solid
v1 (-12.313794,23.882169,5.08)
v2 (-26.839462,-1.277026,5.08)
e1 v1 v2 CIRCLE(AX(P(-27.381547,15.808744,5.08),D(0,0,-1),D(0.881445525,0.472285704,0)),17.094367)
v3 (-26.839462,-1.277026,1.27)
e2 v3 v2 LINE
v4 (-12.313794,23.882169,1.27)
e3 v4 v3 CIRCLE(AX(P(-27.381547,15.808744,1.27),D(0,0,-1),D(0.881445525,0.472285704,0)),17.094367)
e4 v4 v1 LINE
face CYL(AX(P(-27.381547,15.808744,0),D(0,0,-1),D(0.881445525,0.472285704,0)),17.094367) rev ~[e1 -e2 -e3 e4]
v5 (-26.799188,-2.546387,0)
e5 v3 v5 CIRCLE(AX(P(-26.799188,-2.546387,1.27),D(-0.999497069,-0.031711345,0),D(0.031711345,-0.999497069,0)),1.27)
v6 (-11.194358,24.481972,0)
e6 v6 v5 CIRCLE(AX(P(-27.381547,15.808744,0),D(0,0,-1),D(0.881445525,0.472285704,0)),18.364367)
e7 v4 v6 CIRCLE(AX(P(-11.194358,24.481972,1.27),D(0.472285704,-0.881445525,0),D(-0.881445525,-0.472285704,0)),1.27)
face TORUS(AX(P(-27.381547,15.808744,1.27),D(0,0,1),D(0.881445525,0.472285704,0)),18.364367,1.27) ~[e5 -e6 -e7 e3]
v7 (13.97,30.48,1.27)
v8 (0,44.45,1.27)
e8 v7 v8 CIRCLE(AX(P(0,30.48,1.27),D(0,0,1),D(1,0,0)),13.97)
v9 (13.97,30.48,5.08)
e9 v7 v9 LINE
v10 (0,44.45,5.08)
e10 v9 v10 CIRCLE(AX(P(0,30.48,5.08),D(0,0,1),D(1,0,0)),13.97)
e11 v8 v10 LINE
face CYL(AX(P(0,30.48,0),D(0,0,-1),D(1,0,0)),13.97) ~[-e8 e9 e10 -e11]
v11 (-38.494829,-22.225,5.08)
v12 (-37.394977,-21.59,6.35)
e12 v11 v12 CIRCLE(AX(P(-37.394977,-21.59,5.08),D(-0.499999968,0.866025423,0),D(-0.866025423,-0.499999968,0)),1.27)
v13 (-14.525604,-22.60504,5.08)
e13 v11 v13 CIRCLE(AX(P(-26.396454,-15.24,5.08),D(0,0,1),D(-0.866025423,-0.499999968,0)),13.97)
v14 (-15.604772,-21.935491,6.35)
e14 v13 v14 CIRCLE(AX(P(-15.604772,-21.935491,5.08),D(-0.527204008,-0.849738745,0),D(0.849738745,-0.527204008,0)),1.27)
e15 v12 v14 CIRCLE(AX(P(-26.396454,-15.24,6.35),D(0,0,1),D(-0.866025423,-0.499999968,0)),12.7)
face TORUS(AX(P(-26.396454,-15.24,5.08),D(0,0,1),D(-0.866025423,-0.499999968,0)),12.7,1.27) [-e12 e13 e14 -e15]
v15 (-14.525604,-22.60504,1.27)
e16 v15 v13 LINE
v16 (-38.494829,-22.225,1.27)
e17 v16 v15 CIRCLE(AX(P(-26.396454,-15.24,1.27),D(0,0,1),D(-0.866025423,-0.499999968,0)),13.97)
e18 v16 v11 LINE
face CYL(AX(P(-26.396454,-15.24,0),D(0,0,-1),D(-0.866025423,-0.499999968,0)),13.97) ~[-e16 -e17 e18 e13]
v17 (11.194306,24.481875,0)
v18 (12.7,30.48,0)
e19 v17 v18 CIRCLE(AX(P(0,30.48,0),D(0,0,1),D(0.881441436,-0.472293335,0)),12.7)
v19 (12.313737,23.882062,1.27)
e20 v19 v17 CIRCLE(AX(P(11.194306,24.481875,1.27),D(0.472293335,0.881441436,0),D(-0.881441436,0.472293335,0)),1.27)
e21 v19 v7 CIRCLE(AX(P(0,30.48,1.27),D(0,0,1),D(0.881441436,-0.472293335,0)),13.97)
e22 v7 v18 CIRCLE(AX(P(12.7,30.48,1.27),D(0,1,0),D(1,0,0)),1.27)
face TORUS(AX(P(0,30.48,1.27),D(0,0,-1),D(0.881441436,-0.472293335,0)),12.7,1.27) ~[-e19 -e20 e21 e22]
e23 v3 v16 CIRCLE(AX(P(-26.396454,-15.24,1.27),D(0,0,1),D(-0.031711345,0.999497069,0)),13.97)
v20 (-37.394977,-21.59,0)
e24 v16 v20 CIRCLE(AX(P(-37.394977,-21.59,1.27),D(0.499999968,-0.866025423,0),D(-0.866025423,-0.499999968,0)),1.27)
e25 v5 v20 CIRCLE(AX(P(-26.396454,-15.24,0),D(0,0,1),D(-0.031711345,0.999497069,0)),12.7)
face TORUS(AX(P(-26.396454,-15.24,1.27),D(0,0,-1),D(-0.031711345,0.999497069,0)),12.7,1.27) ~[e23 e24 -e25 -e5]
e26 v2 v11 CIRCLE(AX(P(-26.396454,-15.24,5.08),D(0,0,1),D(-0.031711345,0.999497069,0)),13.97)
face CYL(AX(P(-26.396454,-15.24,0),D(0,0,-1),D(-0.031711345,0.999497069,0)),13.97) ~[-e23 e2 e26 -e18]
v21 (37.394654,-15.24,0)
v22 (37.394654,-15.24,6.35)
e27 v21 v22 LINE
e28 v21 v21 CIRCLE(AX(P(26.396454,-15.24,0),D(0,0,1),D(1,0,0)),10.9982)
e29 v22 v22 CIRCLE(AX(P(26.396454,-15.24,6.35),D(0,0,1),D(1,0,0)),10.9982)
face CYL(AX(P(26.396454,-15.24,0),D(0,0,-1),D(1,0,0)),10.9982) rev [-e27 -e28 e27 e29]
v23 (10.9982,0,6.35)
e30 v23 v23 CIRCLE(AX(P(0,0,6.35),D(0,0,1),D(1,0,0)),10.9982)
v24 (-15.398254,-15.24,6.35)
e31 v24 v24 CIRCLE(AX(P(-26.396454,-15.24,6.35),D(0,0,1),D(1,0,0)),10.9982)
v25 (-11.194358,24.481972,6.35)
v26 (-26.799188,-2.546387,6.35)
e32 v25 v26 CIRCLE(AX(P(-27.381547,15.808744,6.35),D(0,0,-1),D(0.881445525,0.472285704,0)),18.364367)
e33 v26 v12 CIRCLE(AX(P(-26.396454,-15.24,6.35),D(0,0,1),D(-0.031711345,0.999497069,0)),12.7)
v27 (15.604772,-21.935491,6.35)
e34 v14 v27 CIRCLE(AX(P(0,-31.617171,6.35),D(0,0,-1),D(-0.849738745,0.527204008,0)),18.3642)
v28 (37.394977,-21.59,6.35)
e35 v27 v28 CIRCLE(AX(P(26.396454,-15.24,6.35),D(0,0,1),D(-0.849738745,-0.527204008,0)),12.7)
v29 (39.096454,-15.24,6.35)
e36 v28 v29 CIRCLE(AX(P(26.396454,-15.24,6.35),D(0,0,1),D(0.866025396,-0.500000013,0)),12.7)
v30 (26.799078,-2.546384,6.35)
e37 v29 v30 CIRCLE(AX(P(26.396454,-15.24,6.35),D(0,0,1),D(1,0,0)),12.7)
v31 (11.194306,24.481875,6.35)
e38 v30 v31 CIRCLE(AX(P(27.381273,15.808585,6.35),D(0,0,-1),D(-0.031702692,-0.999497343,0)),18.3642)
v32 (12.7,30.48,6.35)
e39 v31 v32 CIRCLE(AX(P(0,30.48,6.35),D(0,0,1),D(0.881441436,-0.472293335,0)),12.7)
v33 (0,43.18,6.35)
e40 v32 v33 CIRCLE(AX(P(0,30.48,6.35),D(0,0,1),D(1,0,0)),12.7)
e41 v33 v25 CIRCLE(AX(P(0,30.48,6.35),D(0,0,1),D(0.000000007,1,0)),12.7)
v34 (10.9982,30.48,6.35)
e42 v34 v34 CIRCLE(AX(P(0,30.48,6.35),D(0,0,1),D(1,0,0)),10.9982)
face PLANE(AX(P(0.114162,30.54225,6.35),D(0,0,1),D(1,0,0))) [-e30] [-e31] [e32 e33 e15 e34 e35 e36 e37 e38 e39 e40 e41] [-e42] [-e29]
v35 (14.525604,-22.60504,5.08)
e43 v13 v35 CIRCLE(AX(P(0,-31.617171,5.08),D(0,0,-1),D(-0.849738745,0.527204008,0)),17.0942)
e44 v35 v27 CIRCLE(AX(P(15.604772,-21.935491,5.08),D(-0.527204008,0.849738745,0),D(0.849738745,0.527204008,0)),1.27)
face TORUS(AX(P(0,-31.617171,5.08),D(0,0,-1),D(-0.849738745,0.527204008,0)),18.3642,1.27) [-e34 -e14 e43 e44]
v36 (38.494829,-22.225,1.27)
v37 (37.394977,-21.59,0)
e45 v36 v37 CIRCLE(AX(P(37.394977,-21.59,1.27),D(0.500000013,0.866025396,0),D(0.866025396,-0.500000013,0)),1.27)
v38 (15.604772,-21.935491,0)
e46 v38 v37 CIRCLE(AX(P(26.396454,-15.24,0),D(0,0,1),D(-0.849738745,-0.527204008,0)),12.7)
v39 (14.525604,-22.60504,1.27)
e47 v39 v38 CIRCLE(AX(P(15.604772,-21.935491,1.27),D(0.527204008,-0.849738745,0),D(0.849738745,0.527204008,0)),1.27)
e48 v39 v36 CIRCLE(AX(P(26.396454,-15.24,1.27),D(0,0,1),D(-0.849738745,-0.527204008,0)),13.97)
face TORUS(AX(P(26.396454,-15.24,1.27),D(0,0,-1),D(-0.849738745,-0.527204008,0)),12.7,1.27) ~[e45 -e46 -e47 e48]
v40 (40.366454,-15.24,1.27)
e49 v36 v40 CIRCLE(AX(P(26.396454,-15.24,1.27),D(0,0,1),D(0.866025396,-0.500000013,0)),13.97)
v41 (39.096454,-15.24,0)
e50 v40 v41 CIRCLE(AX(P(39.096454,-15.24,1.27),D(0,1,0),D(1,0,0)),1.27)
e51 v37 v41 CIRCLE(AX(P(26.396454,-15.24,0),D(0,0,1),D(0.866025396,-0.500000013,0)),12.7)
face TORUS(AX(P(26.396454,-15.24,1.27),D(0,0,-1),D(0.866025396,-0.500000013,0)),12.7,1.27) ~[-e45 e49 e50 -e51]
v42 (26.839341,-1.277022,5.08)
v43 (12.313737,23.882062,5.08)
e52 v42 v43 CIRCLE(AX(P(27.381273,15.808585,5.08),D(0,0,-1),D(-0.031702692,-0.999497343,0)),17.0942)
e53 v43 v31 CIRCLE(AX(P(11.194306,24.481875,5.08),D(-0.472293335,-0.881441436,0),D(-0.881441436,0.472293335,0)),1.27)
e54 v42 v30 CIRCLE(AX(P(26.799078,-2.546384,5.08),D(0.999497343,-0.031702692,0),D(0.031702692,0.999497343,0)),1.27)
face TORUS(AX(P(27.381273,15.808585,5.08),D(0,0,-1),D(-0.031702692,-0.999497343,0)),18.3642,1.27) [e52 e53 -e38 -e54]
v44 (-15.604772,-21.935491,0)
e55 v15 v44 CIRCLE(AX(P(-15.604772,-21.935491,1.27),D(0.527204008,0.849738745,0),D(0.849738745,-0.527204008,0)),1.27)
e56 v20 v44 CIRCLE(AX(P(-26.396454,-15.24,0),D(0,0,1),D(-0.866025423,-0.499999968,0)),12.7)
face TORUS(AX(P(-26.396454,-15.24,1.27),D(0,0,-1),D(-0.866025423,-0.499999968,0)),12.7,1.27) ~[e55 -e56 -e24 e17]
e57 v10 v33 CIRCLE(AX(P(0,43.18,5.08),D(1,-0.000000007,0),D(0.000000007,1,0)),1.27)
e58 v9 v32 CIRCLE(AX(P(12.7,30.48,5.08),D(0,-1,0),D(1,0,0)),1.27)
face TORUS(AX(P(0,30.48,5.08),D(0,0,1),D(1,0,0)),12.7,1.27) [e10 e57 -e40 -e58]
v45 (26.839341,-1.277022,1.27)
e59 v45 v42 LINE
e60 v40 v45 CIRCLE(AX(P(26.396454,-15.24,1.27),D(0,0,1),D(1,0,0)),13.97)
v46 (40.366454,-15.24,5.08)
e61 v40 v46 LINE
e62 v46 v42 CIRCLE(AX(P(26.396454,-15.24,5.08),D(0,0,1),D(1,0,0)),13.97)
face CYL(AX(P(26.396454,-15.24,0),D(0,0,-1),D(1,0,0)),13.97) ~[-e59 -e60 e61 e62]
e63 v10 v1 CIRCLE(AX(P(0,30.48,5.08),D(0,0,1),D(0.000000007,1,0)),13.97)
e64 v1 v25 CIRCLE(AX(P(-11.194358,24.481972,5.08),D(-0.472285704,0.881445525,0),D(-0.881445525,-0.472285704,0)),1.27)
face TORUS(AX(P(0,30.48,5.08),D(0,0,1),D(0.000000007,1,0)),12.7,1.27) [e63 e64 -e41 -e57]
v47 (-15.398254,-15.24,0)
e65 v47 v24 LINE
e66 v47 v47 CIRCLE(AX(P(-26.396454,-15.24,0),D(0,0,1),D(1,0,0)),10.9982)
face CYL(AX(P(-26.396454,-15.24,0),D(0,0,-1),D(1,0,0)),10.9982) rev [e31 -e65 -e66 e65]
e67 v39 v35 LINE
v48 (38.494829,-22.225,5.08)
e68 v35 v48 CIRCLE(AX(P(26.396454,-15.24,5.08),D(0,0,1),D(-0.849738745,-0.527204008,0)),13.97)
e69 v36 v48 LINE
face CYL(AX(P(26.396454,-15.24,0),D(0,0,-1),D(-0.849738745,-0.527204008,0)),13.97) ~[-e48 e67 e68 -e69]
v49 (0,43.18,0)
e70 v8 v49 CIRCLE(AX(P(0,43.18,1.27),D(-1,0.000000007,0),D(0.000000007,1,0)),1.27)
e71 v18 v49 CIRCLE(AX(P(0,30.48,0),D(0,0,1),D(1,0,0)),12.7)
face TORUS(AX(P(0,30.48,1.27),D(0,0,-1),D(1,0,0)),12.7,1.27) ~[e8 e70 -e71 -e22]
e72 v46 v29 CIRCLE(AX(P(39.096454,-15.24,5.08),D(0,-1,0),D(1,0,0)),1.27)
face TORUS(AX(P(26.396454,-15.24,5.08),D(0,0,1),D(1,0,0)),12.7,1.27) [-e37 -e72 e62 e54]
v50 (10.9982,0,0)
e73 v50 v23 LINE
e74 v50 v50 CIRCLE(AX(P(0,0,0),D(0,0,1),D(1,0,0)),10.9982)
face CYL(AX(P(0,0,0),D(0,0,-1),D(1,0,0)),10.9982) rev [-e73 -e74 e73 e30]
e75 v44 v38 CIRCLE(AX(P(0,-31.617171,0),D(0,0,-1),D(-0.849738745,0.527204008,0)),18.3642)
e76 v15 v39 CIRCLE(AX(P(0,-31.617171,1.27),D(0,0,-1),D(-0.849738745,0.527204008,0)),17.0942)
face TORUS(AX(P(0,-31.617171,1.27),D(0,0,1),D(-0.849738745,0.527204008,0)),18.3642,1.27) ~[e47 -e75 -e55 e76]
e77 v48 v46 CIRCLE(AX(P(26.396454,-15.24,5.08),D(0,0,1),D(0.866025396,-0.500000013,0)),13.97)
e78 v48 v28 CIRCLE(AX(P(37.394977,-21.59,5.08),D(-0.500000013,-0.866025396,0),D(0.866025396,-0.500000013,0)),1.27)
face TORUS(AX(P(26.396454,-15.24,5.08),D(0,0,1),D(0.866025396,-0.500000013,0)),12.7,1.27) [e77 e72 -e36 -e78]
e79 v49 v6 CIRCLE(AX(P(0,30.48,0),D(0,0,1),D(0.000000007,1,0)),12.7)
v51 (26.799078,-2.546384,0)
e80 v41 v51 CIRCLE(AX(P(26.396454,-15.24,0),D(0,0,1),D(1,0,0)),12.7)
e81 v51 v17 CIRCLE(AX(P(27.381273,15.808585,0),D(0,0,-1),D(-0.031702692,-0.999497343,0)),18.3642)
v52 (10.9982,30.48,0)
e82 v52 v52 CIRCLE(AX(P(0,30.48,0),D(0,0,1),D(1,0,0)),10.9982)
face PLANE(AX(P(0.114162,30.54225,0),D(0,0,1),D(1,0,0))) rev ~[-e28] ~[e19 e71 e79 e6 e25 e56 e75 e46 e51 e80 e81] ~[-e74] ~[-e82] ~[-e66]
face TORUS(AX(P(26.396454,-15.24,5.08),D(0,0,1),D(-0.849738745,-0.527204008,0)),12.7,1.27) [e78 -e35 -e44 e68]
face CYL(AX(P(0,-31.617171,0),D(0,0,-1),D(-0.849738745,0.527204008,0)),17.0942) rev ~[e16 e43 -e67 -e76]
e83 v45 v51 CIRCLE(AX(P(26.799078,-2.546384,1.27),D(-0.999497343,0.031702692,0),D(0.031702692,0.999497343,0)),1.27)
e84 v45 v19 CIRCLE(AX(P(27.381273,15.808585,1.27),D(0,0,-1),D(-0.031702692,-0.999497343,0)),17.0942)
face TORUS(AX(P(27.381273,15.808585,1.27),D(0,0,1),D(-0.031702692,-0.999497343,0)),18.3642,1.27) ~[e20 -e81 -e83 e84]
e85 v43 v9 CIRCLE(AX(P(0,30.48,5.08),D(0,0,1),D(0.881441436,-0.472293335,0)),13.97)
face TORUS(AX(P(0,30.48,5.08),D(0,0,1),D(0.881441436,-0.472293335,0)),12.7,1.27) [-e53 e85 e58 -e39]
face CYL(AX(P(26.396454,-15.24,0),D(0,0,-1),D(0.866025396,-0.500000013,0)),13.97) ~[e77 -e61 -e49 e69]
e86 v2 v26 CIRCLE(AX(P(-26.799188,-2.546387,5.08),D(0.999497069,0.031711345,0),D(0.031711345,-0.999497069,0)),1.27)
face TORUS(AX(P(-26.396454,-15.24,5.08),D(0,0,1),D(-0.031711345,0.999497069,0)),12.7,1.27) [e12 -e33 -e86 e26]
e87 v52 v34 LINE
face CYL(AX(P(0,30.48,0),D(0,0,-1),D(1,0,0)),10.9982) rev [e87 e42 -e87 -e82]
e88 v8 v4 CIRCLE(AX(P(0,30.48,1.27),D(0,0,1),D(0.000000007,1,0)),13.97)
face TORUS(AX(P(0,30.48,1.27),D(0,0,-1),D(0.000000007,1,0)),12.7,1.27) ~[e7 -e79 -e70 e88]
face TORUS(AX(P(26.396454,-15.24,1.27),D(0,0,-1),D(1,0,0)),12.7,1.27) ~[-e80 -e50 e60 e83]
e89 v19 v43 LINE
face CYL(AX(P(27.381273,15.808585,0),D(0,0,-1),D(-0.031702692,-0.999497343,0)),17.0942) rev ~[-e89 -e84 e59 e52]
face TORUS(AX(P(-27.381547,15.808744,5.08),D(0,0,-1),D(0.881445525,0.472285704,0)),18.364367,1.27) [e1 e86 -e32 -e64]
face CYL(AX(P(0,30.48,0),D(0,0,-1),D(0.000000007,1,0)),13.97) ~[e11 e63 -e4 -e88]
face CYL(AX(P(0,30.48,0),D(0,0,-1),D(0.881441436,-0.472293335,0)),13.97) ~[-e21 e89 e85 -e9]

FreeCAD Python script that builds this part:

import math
import FreeCAD as App
import Part
import Sketcher
Q = App.Units.Quantity


def edges_at(feature, points):
    """Names of the edges that pass closest to the given points."""
    edges = feature.Shape.Edges
    near = lambda p: min(range(len(edges)), key=lambda i: edges[i].distToShape(Part.Vertex(*p))[0])
    return sorted({f"Edge{near(p) + 1}" for p in points})

doc = App.newDocument("Part")
body = doc.addObject("PartDesign::Body", "Body")

# Sketch on XY plane
sketch1 = doc.addObject("Sketcher::SketchObject", "Sketch")
body.addObject(sketch1)
sketch1.AttachmentSupport = (doc.XY_Plane, [""])
sketch1.MapMode = "FlatFace"
sketch1.addGeometry(Part.ArcOfCircle(Part.Circle(App.Vector(0, 30, 0), App.Vector(0, 0, 1), 14), math.radians(0), math.radians(90)), False)
sketch1.addGeometry(Part.ArcOfCircle(Part.Circle(App.Vector(0, 30, 0), App.Vector(0, 0, 1), 14), math.radians(90), math.radians(208)), False)
sketch1.addGeometry(Part.ArcOfCircle(Part.Circle(App.Vector(-27, 16, 0), App.Vector(0, 0, 1), 17), math.radians(-88), math.radians(28)), False)
sketch1.addGeometry(Part.ArcOfCircle(Part.Circle(App.Vector(-26, -15, 0), App.Vector(0, 0, 1), 14), math.radians(92), math.radians(210)), False)
sketch1.addGeometry(Part.ArcOfCircle(Part.Circle(App.Vector(-26, -15, 0), App.Vector(0, 0, 1), 14), math.radians(-150), math.radians(-32)), False)
sketch1.addGeometry(Part.ArcOfCircle(Part.Circle(App.Vector(0, -32, 0), App.Vector(0, 0, 1), 17), math.radians(32), math.radians(148)), False)
sketch1.addGeometry(Part.ArcOfCircle(Part.Circle(App.Vector(26, -15, 0), App.Vector(0, 0, 1), 14), math.radians(-148), math.radians(-30)), False)
sketch1.addGeometry(Part.ArcOfCircle(Part.Circle(App.Vector(26, -15, 0), App.Vector(0, 0, 1), 14), math.radians(-30), math.radians(0)), False)
sketch1.addGeometry(Part.ArcOfCircle(Part.Circle(App.Vector(26, -15, 0), App.Vector(0, 0, 1), 14), math.radians(0), math.radians(88)), False)
sketch1.addGeometry(Part.ArcOfCircle(Part.Circle(App.Vector(27, 16, 0), App.Vector(0, 0, 1), 17), math.radians(152), math.radians(268)), False)
sketch1.addGeometry(Part.ArcOfCircle(Part.Circle(App.Vector(0, 30, 0), App.Vector(0, 0, 1), 14), math.radians(-28), math.radians(0)), False)
sketch1.addGeometry(Part.Circle(App.Vector(-26, -15, 0), App.Vector(0, 0, 1), 11), False)
sketch1.addGeometry(Part.Circle(App.Vector(26, -15, 0), App.Vector(0, 0, 1), 11), False)
sketch1.addGeometry(Part.Circle(App.Vector(0, 0, 0), App.Vector(0, 0, 1), 11), False)
sketch1.addGeometry(Part.Circle(App.Vector(0, 30, 0), App.Vector(0, 0, 1), 11), False)
sketch1.addConstraint(Sketcher.Constraint("Tangent", 0, 2, 1, 1))
sketch1.addConstraint(Sketcher.Constraint("Tangent", 1, 2, 2, 2))
sketch1.addConstraint(Sketcher.Constraint("Tangent", 2, 1, 3, 1))
sketch1.addConstraint(Sketcher.Constraint("Tangent", 3, 2, 4, 1))
sketch1.addConstraint(Sketcher.Constraint("Tangent", 4, 2, 5, 2))
sketch1.addConstraint(Sketcher.Constraint("Tangent", 5, 1, 6, 1))
sketch1.addConstraint(Sketcher.Constraint("Tangent", 6, 2, 7, 1))
sketch1.addConstraint(Sketcher.Constraint("Tangent", 7, 2, 8, 1))
sketch1.addConstraint(Sketcher.Constraint("Tangent", 8, 2, 9, 2))
sketch1.addConstraint(Sketcher.Constraint("Tangent", 9, 1, 10, 1))
sketch1.addConstraint(Sketcher.Constraint("Tangent", 10, 2, 0, 1))
sketch1.addConstraint(Sketcher.Constraint("Coincident", 13, 3, -1, 1))
sketch1.addConstraint(Sketcher.Constraint("Coincident", 8, 3, 6, 3))
sketch1.addConstraint(Sketcher.Constraint("Coincident", 11, 3, 3, 3))
sketch1.addConstraint(Sketcher.Constraint("Coincident", 12, 3, 6, 3))
sketch1.addConstraint(Sketcher.Constraint("Coincident", 14, 3, 0, 3))
sketch1.addConstraint(Sketcher.Constraint("Equal", 0, 1))
sketch1.addConstraint(Sketcher.Constraint("Equal", 1, 3))
sketch1.addConstraint(Sketcher.Constraint("Equal", 3, 4))
sketch1.addConstraint(Sketcher.Constraint("Equal", 4, 6))
sketch1.addConstraint(Sketcher.Constraint("Equal", 5, 9))
sketch1.addConstraint(Sketcher.Constraint("Equal", 8, 10))
sketch1.addConstraint(Sketcher.Constraint("Equal", 11, 12))
sketch1.addConstraint(Sketcher.Constraint("Equal", 12, 13))
sketch1.addConstraint(Sketcher.Constraint("Equal", 13, 14))
sketch1.addConstraint(Sketcher.Constraint("Symmetric", 3, 3, 6, 3, -2))
sketch1.addConstraint(Sketcher.Constraint("PointOnObject", 0, 3, -2))
sketch1.addConstraint(Sketcher.Constraint("PointOnObject", 0, 2, -2))
sketch1.addConstraint(Sketcher.Constraint("Horizontal", 3, 2, 6, 2))
sketch1.addConstraint(Sketcher.Constraint("Horizontal", 12, 3, 7, 2))
sketch1.addConstraint(Sketcher.Constraint("Horizontal", 14, 3, 10, 2))
sketch1.addConstraint(Sketcher.Constraint("Radius", 0, Q("0.55 in")))
sketch1.addConstraint(Sketcher.Constraint("Diameter", 11, Q("0.866 in")))
sketch1.addConstraint(Sketcher.Constraint("Radius", 5, Q("0.673 in")))
sketch1.addConstraint(Sketcher.Constraint("DistanceY", -1, 1, 0, 3, Q("1.2 in")))
sketch1.addConstraint(Sketcher.Constraint("DistanceY", 3, 3, -1, 1, Q("0.6 in")))
sketch1.addConstraint(Sketcher.Constraint("DistanceY", 3, 2, -1, 1, Q("0.875 in")))
sketch1.addConstraint(Sketcher.Constraint("Radius", 2, Q("17.094367 mm")))
sketch1.addConstraint(Sketcher.Constraint("DistanceY", 5, 3, -1, 1, Q("31.617171 mm")))
pad1 = doc.addObject("PartDesign::Pad", "Pad")
body.addObject(pad1)
pad1.Profile = sketch1
pad1.Length = Q("0.25 in")
doc.recompute()

fillet = doc.addObject("PartDesign::Fillet", "Fillet")
body.addObject(fillet)
fillet.Base = (pad1, edges_at(pad1, [(39.89, -18.856, 6.35), (39.89, -18.856, 0)]))
fillet.Radius = Q("0.05 in")

doc.recompute()
